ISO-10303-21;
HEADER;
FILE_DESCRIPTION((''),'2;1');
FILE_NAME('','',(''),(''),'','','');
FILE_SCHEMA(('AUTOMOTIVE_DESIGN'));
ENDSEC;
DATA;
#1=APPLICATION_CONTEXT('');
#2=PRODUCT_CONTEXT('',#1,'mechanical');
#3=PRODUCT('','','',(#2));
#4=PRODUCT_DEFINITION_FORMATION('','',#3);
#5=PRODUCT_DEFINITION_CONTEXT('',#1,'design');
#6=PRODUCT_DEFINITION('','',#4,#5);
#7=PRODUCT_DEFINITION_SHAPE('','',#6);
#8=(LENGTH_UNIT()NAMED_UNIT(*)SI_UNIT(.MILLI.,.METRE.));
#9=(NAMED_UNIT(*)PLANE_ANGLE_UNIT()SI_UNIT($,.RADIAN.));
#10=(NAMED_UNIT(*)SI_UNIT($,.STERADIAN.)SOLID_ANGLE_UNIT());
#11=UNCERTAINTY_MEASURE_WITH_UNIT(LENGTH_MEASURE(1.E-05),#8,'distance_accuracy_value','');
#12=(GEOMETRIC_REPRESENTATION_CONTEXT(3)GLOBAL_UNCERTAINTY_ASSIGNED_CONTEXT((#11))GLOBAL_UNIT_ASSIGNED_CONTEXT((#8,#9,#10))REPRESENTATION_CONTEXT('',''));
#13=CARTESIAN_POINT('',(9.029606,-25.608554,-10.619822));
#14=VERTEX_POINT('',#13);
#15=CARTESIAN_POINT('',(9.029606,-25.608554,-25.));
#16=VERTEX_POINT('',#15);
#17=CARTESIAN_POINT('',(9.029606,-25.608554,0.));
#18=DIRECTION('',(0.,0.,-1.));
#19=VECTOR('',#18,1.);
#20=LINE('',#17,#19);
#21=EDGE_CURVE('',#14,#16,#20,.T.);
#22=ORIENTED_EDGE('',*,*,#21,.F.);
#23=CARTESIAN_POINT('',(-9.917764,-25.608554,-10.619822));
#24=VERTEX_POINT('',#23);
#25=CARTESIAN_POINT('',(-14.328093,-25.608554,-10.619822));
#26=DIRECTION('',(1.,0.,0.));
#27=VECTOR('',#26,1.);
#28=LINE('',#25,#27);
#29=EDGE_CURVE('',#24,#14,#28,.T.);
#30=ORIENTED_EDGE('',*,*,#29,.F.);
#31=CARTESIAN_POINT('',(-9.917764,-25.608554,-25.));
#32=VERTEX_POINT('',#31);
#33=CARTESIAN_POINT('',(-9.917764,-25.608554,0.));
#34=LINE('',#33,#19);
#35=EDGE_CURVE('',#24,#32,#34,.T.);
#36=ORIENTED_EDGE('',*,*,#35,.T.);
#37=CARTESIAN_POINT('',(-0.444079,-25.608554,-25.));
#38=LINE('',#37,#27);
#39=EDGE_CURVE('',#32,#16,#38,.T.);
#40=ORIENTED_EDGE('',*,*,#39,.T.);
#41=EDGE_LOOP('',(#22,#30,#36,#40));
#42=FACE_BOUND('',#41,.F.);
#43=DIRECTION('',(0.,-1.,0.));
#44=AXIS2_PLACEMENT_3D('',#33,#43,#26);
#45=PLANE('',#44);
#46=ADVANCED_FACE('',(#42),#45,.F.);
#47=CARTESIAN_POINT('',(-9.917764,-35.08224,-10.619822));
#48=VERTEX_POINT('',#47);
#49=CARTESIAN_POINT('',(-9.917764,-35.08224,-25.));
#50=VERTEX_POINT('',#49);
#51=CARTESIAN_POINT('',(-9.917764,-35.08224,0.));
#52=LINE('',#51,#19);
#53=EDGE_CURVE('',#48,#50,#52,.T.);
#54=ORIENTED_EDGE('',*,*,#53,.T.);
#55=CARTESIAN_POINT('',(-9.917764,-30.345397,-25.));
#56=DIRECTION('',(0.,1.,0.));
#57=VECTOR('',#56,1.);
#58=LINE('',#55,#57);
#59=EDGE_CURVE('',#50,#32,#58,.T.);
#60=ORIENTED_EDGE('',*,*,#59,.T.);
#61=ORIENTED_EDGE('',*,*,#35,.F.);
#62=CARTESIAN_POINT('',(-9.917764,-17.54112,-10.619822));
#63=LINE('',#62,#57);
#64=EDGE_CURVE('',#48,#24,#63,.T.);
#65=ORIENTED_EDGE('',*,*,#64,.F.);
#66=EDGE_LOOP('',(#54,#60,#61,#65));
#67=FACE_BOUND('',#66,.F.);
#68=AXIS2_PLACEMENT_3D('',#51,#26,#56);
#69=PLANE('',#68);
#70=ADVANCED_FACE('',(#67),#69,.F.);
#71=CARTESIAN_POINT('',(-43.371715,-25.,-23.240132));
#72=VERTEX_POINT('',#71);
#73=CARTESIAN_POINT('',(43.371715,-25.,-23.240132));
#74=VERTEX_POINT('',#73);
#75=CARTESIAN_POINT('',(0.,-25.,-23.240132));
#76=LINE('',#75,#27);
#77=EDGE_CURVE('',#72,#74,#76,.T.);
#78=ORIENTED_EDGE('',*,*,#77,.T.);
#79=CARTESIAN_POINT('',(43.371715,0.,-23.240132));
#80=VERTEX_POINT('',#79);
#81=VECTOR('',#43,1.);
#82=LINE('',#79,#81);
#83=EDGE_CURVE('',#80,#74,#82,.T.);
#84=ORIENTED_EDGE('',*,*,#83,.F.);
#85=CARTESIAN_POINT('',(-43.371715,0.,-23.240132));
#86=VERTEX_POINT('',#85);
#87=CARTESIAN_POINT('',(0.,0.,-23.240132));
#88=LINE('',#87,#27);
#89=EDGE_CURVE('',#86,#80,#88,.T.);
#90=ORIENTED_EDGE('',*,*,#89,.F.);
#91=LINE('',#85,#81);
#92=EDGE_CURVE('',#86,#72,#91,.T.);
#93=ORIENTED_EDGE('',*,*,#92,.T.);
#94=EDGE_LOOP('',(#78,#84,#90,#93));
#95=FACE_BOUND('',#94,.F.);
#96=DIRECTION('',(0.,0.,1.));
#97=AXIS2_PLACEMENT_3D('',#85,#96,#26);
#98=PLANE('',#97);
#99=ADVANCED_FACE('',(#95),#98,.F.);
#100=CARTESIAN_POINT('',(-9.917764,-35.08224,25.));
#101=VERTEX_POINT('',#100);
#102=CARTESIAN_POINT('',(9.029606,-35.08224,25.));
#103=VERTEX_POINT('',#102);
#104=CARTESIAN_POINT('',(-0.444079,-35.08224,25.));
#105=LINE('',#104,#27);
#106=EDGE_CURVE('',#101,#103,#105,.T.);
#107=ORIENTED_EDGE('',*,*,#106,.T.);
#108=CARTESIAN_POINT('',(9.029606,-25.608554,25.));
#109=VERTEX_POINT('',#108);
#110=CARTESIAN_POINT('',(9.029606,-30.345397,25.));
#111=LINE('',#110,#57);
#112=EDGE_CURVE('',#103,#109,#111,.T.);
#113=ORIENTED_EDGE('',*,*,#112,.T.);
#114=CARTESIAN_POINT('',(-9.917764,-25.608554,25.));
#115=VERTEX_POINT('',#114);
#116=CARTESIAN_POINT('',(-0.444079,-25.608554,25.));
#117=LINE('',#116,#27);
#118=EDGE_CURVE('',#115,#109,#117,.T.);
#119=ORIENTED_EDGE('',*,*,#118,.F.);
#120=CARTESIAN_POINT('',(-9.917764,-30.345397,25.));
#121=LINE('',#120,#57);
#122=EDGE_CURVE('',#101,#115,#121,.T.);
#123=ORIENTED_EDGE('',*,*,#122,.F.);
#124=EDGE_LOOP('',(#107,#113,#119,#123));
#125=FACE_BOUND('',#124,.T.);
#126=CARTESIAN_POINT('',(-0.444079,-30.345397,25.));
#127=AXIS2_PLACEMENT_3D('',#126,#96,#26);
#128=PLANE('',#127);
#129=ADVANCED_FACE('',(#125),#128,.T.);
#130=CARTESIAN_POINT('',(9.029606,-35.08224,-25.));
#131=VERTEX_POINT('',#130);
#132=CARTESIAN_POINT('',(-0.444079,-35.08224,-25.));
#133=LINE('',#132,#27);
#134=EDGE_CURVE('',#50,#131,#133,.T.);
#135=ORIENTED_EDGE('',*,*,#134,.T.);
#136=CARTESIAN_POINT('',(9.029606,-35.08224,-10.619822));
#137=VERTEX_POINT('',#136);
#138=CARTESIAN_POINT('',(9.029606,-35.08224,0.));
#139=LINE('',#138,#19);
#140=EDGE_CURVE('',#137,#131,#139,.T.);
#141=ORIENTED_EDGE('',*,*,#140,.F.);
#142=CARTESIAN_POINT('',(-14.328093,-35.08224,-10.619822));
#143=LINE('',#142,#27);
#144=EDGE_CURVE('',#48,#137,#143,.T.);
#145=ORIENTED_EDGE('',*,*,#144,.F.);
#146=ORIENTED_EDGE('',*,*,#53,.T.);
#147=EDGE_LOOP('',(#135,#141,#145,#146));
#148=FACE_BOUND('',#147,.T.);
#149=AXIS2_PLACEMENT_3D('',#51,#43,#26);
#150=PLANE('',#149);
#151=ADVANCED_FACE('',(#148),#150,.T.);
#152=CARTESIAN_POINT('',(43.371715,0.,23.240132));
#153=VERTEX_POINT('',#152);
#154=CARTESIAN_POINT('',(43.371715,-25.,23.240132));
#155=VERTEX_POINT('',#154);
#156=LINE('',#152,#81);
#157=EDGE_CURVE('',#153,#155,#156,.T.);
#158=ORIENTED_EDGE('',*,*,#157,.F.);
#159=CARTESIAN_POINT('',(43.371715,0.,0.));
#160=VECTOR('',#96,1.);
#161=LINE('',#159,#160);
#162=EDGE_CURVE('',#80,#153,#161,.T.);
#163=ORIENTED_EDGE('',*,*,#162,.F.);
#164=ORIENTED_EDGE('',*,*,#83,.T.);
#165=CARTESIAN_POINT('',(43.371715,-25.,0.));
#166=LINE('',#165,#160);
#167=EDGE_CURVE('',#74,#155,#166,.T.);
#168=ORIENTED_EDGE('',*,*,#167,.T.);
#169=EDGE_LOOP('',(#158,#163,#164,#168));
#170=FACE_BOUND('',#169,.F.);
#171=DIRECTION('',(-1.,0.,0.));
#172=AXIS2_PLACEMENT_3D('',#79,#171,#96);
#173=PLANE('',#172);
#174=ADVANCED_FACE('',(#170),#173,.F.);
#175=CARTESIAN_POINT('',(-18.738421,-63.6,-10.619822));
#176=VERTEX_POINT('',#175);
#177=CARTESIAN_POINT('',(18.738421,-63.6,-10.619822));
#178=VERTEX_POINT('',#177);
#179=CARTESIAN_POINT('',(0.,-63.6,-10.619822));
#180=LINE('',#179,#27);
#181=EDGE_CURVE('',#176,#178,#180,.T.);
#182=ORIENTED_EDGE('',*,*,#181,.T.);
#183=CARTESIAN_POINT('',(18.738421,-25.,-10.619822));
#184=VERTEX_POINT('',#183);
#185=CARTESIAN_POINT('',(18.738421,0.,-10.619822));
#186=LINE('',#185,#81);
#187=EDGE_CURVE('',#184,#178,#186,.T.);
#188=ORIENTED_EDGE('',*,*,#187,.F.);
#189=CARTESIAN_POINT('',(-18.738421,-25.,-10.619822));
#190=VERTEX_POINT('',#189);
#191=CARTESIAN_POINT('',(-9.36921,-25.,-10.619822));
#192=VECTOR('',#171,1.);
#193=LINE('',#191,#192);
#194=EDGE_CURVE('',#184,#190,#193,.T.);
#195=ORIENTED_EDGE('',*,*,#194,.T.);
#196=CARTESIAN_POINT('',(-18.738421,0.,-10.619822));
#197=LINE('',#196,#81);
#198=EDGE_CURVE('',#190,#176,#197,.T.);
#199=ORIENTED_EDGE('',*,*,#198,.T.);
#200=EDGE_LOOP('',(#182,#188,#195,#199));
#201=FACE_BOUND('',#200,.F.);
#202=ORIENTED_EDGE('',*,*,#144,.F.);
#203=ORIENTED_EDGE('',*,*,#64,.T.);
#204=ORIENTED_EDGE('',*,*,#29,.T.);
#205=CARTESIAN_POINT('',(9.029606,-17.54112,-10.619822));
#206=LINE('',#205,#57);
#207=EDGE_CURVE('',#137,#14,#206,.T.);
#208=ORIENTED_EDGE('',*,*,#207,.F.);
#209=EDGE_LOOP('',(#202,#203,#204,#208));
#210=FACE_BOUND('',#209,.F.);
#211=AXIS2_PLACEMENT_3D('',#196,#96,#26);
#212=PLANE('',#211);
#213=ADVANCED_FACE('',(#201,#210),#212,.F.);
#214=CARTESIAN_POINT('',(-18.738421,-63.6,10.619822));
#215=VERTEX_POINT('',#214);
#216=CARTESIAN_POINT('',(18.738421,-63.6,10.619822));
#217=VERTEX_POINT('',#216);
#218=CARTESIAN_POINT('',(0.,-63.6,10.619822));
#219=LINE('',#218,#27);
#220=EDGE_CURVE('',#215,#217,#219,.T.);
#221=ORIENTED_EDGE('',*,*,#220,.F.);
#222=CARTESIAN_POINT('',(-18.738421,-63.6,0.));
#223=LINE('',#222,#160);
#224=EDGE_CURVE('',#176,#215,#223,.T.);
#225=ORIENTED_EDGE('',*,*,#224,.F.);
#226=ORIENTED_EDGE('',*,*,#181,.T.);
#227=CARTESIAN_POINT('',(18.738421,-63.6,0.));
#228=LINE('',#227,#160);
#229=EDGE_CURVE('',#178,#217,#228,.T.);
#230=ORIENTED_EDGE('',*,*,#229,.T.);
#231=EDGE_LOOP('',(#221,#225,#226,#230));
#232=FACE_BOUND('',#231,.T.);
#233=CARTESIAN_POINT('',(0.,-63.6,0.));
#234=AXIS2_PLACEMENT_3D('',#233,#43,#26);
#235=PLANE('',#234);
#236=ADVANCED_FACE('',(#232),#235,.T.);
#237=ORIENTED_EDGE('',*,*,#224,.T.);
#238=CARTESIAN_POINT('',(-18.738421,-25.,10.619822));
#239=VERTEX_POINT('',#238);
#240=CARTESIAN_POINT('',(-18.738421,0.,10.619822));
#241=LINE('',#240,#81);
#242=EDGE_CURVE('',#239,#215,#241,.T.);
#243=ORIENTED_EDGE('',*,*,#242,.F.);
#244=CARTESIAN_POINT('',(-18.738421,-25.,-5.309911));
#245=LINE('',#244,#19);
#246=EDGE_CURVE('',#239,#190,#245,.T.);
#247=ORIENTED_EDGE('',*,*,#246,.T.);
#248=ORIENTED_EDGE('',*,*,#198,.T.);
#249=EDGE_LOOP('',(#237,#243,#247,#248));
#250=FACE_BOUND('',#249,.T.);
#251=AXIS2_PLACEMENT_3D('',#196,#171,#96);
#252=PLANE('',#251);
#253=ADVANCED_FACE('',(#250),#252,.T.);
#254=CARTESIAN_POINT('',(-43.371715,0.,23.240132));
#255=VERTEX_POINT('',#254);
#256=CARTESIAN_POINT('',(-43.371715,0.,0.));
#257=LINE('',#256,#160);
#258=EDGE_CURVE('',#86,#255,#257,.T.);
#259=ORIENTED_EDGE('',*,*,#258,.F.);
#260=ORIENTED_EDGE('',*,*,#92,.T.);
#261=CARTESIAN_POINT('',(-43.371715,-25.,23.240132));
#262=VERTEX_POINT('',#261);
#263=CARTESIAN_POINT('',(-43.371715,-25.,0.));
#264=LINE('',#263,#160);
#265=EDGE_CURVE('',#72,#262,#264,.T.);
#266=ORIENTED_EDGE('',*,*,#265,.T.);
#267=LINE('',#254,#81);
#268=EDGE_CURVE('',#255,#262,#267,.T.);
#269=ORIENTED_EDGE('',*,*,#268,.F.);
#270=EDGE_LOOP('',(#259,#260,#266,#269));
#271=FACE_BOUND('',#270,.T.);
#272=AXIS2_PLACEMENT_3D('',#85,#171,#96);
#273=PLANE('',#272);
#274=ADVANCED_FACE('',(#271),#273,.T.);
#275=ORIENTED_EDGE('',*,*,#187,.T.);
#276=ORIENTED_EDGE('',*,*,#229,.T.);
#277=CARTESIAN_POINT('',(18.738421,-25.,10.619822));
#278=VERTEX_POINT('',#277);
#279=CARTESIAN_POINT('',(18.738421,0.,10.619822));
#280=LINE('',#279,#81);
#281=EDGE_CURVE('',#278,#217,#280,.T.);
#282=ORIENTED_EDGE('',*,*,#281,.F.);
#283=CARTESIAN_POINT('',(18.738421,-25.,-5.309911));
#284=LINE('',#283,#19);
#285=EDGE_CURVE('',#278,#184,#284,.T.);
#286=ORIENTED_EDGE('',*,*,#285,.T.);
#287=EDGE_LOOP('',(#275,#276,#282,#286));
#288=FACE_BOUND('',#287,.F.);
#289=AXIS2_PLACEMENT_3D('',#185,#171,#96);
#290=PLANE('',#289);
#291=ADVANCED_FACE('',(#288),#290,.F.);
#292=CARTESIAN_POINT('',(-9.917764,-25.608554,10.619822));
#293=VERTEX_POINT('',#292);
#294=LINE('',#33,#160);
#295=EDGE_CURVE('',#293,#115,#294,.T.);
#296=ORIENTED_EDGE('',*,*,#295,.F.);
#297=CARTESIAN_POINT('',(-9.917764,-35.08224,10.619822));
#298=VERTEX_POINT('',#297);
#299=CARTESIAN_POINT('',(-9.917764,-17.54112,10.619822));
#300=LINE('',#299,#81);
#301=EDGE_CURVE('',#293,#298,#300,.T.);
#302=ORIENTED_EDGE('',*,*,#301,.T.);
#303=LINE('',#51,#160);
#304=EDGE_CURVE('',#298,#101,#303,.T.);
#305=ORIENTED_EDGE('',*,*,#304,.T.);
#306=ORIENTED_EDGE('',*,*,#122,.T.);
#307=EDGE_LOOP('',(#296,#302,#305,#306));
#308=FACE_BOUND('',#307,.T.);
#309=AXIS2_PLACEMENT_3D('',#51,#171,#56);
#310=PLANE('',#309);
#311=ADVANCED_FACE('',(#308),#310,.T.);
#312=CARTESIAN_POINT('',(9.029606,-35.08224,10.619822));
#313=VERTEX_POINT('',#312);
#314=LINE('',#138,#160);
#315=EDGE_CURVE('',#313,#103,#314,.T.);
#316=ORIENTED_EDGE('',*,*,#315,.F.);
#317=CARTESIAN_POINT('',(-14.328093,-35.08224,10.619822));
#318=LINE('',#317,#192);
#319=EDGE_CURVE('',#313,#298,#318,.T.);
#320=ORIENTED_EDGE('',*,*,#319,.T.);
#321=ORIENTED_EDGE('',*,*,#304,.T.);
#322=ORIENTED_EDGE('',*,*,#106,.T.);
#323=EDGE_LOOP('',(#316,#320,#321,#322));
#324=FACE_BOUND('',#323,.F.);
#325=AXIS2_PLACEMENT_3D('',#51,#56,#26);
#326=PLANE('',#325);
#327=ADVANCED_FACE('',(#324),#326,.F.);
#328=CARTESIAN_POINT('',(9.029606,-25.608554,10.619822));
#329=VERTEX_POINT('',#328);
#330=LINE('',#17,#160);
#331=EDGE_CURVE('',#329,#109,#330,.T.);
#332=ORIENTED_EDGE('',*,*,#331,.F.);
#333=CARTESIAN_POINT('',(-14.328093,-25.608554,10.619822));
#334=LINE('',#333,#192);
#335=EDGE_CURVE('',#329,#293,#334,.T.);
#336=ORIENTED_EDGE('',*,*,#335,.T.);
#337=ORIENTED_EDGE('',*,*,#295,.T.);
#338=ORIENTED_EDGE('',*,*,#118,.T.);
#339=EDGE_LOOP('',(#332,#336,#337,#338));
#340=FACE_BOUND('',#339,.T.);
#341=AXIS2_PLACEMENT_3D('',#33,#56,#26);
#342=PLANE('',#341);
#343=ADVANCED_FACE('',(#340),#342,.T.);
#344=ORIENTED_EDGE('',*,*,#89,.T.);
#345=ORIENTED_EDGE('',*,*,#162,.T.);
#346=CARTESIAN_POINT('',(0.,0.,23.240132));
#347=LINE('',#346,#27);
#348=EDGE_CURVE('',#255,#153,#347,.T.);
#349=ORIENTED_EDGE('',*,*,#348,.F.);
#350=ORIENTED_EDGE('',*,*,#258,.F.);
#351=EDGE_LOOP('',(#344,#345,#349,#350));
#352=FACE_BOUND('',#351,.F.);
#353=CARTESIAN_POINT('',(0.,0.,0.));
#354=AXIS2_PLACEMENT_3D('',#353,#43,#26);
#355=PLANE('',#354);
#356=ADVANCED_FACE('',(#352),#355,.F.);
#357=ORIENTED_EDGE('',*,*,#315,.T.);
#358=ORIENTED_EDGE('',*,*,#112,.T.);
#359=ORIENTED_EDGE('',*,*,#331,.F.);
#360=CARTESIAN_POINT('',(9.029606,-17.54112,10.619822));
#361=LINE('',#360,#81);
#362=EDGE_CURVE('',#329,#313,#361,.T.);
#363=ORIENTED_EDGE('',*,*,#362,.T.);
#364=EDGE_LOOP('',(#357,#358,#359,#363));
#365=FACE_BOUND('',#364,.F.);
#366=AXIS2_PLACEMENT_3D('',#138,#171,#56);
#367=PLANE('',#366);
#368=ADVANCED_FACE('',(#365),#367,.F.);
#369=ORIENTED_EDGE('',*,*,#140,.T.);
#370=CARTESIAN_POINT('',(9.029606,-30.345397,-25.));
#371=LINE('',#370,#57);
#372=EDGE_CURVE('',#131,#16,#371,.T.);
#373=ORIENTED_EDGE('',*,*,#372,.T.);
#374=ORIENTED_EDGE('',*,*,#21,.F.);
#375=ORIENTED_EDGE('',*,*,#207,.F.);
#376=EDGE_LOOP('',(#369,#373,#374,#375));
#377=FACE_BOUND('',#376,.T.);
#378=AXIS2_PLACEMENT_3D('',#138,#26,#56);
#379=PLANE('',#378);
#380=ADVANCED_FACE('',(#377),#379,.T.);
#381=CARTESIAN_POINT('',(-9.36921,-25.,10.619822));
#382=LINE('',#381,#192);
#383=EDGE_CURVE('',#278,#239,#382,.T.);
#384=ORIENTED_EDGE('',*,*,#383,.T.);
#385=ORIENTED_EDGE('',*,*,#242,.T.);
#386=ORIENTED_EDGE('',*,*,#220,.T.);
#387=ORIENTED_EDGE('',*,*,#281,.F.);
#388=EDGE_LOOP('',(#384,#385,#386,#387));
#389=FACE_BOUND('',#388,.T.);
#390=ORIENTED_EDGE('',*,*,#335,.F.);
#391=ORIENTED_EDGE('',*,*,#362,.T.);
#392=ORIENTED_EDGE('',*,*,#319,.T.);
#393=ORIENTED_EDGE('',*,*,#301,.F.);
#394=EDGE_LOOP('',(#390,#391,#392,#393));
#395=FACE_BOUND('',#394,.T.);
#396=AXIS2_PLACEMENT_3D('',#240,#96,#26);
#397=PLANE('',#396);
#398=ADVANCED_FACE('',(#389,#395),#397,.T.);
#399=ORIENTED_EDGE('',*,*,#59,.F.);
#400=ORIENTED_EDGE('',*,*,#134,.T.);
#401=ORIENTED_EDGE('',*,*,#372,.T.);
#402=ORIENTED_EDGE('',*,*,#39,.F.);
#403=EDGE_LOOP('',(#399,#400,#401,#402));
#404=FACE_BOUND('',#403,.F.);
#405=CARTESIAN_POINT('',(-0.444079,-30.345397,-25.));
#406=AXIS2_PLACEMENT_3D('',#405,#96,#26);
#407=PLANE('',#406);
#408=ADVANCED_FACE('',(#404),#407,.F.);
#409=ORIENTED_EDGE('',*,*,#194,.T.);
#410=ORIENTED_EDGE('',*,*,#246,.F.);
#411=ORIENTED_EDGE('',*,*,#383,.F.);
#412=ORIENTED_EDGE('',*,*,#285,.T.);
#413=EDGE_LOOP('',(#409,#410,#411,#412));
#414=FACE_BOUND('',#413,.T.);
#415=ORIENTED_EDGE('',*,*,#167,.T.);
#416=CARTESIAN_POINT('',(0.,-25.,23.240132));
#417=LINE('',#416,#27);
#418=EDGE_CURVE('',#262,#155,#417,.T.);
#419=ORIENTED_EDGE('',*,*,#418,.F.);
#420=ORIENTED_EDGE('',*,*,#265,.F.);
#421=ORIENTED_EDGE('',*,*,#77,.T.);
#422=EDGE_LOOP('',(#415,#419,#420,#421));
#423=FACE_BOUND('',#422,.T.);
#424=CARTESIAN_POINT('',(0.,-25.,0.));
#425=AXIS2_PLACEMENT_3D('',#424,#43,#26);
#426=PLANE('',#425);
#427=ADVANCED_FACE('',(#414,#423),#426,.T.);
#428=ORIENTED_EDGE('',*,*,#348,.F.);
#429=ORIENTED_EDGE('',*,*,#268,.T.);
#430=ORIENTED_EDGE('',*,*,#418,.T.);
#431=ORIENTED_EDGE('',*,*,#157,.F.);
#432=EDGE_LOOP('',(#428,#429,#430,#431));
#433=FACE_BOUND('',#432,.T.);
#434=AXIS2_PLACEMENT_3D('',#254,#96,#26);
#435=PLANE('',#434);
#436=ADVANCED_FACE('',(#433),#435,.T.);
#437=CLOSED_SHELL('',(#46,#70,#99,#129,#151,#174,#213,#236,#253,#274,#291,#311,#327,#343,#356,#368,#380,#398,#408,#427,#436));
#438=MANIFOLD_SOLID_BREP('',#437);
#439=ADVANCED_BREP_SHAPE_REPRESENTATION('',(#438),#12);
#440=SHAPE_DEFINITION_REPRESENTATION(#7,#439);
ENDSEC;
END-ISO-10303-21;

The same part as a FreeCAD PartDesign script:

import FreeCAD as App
import Part
import Sketcher

V = App.Vector
Q = App.Units.Quantity


def add_polygon(sketch, points):
    """Adds a closed chain of lines whose ends are joined by coincident constraints."""
    first, n = sketch.GeometryCount, len(points)
    for a, b in zip(points, points[1:] + points[:1]):
        sketch.addGeometry(Part.LineSegment(App.Vector(*a, 0), App.Vector(*b, 0)), False)
    for i in range(n):
        sketch.addConstraint(Sketcher.Constraint("Coincident", first + i, 2, first + (i + 1) % n, 1))

doc = App.newDocument("Part")
body = doc.addObject("PartDesign::Body", "Body")

# Sketch on XZ plane
sketch1 = body.newObject("Sketcher::SketchObject", "Sketch")
sketch1.AttachmentSupport = (doc.getObject("XZ_Plane"), [""])
sketch1.MapMode = "FlatFace"
add_polygon(sketch1, [(-43, 23), (-43, -23), (43, -23), (43, 23)])  # lines 0-3
sketch1.addConstraint([
    Sketcher.Constraint("Vertical", 0),
    Sketcher.Constraint("Horizontal", 1),
    Sketcher.Constraint("Vertical", 2),
    Sketcher.Constraint("Horizontal", 3),
    Sketcher.Constraint("Symmetric", 0, 2, 2, 2, -1, 1),
    Sketcher.Constraint("DistanceX", 1, 1, 1, 2, Q("86.74343 mm")),
    Sketcher.Constraint("DistanceY", 0, 2, 0, 1, Q("46.480264 mm")),
])
pad1 = body.newObject("PartDesign::Pad", "Pad")
pad1.Profile = sketch1
pad1.Length = 25

# Sketch on XZ plane
sketch2 = body.newObject("Sketcher::SketchObject", "Sketch001")
sketch2.AttachmentSupport = (doc.getObject("XZ_Plane"), [""])
sketch2.MapMode = "FlatFace"
add_polygon(sketch2, [(-19, 11), (-19, -11), (19, -11), (19, 11)])  # lines 0-3
sketch2.addConstraint([
    Sketcher.Constraint("Vertical", 0),
    Sketcher.Constraint("Horizontal", 1),
    Sketcher.Constraint("Vertical", 2),
    Sketcher.Constraint("Horizontal", 3),
    Sketcher.Constraint("Symmetric", 0, 2, 2, 2, -1, 1),
    Sketcher.Constraint("DistanceX", 1, 1, 1, 2, Q("37.476842 mm")),
    Sketcher.Constraint("DistanceY", 0, 2, 0, 1, Q("21.239644 mm")),
])
pad2 = body.newObject("PartDesign::Pad", "Pad001")
pad2.Profile = sketch2
pad2.Length = 63.6

# Sketch on XY plane
sketch3 = body.newObject("Sketcher::SketchObject", "Sketch002")
sketch3.AttachmentSupport = (doc.getObject("XY_Plane"), [""])
sketch3.MapMode = "FlatFace"
add_polygon(sketch3, [(-10, -26), (-10, -35), (9, -35), (9, -26)])  # lines 0-3
sketch3.addConstraint([
    Sketcher.Constraint("Vertical", 0),
    Sketcher.Constraint("Horizontal", 1),
    Sketcher.Constraint("Vertical", 2),
    Sketcher.Constraint("Horizontal", 3),
    Sketcher.Constraint("DistanceX", 1, 1, 1, 2, Q("18.94737 mm")),
    Sketcher.Constraint("DistanceY", 0, 2, 0, 1, Q("9.473686 mm")),
    Sketcher.Constraint("DistanceY", 0, 2, -1, 1, Q("35.08224 mm")),
    Sketcher.Constraint("DistanceX", 0, 2, -1, 1, Q("9.917764 mm")),
])
pad3 = body.newObject("PartDesign::Pad", "Pad002")
pad3.Profile = sketch3
pad3.Length = 25
pad3.Reversed = True

# Sketch on XY plane
sketch4 = body.newObject("Sketcher::SketchObject", "Sketch003")
sketch4.AttachmentSupport = (doc.getObject("XY_Plane"), [""])
sketch4.MapMode = "FlatFace"
add_polygon(sketch4, [(-10, -26), (-10, -35), (9, -35), (9, -26)])  # lines 0-3
sketch4.addConstraint([
    Sketcher.Constraint("Vertical", 0),
    Sketcher.Constraint("Horizontal", 1),
    Sketcher.Constraint("Vertical", 2),
    Sketcher.Constraint("Horizontal", 3),
    Sketcher.Constraint("DistanceX", 1, 1, 1, 2, Q("18.94737 mm")),
    Sketcher.Constraint("DistanceY", 0, 2, 0, 1, Q("9.473686 mm")),
    Sketcher.Constraint("DistanceY", 0, 2, -1, 1, Q("35.08224 mm")),
    Sketcher.Constraint("DistanceX", 0, 2, -1, 1, Q("9.917764 mm")),
])
pad4 = body.newObject("PartDesign::Pad", "Pad003")
pad4.Profile = sketch4
pad4.Length = 25

doc.recompute()
